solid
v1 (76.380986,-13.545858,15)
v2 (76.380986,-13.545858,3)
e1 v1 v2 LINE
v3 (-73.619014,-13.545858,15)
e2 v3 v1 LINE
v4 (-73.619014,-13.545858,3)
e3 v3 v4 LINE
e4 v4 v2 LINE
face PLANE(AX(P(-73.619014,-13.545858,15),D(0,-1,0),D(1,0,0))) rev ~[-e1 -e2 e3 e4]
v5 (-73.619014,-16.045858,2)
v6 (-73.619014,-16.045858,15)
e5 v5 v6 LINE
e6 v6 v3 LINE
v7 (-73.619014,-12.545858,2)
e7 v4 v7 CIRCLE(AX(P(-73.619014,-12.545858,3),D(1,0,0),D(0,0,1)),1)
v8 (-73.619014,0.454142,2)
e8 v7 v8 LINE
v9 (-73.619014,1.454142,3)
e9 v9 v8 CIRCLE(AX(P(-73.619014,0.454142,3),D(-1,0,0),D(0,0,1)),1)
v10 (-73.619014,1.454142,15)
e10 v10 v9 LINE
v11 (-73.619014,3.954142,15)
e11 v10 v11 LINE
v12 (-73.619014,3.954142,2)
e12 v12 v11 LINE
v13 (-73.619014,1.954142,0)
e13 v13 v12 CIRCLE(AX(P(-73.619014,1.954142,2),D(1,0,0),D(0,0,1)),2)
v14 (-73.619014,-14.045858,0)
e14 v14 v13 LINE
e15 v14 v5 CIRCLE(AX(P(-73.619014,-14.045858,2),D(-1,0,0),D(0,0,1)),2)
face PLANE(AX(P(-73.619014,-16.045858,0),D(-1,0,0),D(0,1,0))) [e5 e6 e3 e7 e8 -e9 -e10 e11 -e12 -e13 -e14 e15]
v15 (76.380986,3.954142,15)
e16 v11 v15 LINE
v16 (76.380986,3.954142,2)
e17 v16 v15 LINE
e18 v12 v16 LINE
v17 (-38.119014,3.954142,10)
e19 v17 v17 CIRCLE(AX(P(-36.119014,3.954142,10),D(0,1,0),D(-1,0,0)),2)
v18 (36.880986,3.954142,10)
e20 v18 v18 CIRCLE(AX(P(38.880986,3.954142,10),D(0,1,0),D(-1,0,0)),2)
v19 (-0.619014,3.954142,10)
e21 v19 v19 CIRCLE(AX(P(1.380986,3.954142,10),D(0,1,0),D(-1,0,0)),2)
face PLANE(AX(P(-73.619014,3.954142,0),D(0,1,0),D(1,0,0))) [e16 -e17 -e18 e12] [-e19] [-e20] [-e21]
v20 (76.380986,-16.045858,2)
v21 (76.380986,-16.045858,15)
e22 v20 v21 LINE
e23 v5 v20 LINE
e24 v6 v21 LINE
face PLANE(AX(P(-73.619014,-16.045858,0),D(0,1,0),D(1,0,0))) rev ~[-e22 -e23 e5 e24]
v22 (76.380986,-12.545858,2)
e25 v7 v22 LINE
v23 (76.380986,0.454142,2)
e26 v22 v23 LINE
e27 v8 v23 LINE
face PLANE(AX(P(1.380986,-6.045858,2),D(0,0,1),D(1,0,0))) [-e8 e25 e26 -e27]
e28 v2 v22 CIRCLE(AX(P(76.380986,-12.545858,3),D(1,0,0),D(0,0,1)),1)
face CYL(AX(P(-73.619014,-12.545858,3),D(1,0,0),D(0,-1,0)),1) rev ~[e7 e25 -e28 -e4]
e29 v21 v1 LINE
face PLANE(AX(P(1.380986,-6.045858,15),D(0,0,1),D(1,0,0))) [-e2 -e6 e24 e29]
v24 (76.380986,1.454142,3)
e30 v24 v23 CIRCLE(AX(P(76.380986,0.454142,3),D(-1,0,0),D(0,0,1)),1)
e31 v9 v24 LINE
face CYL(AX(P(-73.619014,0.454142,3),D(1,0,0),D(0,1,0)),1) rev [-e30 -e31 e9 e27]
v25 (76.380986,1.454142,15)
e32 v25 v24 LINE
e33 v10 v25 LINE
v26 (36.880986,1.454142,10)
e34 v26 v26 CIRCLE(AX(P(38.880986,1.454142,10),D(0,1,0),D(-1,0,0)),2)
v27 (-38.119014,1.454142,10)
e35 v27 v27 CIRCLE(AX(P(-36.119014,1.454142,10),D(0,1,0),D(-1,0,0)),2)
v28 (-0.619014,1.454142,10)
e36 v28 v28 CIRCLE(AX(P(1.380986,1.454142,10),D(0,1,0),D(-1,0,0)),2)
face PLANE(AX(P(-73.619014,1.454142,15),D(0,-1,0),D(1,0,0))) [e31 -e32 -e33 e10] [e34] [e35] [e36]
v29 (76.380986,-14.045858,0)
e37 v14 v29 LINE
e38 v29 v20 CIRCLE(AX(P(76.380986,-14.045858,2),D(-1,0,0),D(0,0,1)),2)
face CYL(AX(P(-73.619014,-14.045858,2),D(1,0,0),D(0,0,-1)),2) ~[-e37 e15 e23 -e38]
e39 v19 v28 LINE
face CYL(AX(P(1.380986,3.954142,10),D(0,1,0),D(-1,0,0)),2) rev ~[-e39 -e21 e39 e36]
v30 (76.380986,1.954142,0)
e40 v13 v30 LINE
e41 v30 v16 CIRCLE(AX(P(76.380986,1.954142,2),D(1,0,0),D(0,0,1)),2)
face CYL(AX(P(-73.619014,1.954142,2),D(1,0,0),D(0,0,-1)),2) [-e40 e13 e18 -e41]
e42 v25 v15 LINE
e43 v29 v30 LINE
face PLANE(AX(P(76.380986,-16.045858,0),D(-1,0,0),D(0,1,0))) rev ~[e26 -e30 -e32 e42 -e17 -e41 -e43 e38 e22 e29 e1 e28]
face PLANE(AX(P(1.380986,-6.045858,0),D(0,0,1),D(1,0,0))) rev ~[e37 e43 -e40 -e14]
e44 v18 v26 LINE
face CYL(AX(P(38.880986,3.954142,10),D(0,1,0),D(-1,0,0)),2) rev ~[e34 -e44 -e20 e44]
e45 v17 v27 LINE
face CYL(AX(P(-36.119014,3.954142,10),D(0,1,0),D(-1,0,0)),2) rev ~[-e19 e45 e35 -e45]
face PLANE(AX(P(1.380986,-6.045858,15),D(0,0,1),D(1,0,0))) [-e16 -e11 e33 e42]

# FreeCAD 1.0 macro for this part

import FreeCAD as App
import Part
import Sketcher


def edges_at(feature, points):
    """Names of the edges that pass closest to the given points."""
    edges = feature.Shape.Edges
    near = lambda p: min(range(len(edges)), key=lambda i: edges[i].distToShape(Part.Vertex(*p))[0])
    return sorted({f"Edge{near(p) + 1}" for p in points})

doc = App.newDocument("Part")
body = doc.addObject("PartDesign::Body", "Body")

# Sketch on XY plane
sketch1 = doc.addObject("Sketcher::SketchObject", "Sketch")
body.addObject(sketch1)
sketch1.AttachmentSupport = (doc.XY_Plane, [""])
sketch1.MapMode = "FlatFace"
sketch1.addGeometry([
    Part.LineSegment(App.Vector(-74, 4, 0), App.Vector(-74, -16, 0)),
    Part.LineSegment(App.Vector(-74, -16, 0), App.Vector(76, -16, 0)),
    Part.LineSegment(App.Vector(76, -16, 0), App.Vector(76, 4, 0)),
    Part.LineSegment(App.Vector(76, 4, 0), App.Vector(-74, 4, 0)),
], False)
sketch1.addConstraint([
    Sketcher.Constraint("Coincident", 0, 2, 1, 1),
    Sketcher.Constraint("Coincident", 1, 2, 2, 1),
    Sketcher.Constraint("Coincident", 2, 2, 3, 1),
    Sketcher.Constraint("Coincident", 3, 2, 0, 1),
    Sketcher.Constraint("Vertical", 0),
    Sketcher.Constraint("Horizontal", 1),
    Sketcher.Constraint("Vertical", 2),
    Sketcher.Constraint("Horizontal", 3),
    Sketcher.Constraint("DistanceX", 1, 1, 1, 2, 150.0),
    Sketcher.Constraint("DistanceY", 0, 2, 0, 1, 20.0),
    Sketcher.Constraint("DistanceY", -1, 1, 2, 2, 3.954142),
    Sketcher.Constraint("DistanceX", 0, 2, -1, 1, 73.619014),
])
pad1 = doc.addObject("PartDesign::Pad", "Pad")
body.addObject(pad1)
pad1.Profile = sketch1
pad1.Length = 15

# Sketch on XY plane
sketch2 = doc.addObject("Sketcher::SketchObject", "Sketch001")
body.addObject(sketch2)
sketch2.AttachmentSupport = (doc.XY_Plane, [""])
sketch2.MapMode = "FlatFace"
sketch2.AttachmentOffset = App.Placement(App.Vector(0, 0, 15), App.Rotation())
sketch2.addGeometry([
    Part.LineSegment(App.Vector(-74, 1, 0), App.Vector(-74, -14, 0)),
    Part.LineSegment(App.Vector(-74, -14, 0), App.Vector(76, -14, 0)),
    Part.LineSegment(App.Vector(76, -14, 0), App.Vector(76, 1, 0)),
    Part.LineSegment(App.Vector(76, 1, 0), App.Vector(-74, 1, 0)),
], False)
sketch2.addConstraint([
    Sketcher.Constraint("Coincident", 0, 2, 1, 1),
    Sketcher.Constraint("Coincident", 1, 2, 2, 1),
    Sketcher.Constraint("Coincident", 2, 2, 3, 1),
    Sketcher.Constraint("Coincident", 3, 2, 0, 1),
    Sketcher.Constraint("Vertical", 0),
    Sketcher.Constraint("Horizontal", 1),
    Sketcher.Constraint("Vertical", 2),
    Sketcher.Constraint("Horizontal", 3),
    Sketcher.Constraint("DistanceX", 1, 1, 1, 2, 150.0),
    Sketcher.Constraint("DistanceY", 0, 2, 0, 1, 15.0),
    Sketcher.Constraint("DistanceY", 0, 2, -1, 1, 13.545858),
    Sketcher.Constraint("DistanceX", 0, 2, -1, 1, 73.619014),
])
pocket1 = doc.addObject("PartDesign::Pocket", "Pocket")
body.addObject(pocket1)
pocket1.Profile = sketch2
pocket1.Length = 13

# Sketch on XZ plane
sketch3 = doc.addObject("Sketcher::SketchObject", "Sketch002")
body.addObject(sketch3)
sketch3.AttachmentSupport = (doc.XZ_Plane, [""])
sketch3.MapMode = "FlatFace"
sketch3.AttachmentOffset = App.Placement(App.Vector(0, 0, -3.954142), App.Rotation())
sketch3.addGeometry([
    Part.Circle(App.Vector(38.9, 10, 0), App.Vector(0, 0, 1), 2),
    Part.Circle(App.Vector(1.4, 10, 0), App.Vector(0, 0, 1), 2),
    Part.Circle(App.Vector(-36.1, 10, 0), App.Vector(0, 0, 1), 2),
], False)
sketch3.addConstraint([
    Sketcher.Constraint("Equal", 0, 1),
    Sketcher.Constraint("Equal", 1, 2),
    Sketcher.Constraint("Horizontal", 0, 3, 1, 3),
    Sketcher.Constraint("Horizontal", 1, 3, 2, 3),
    Sketcher.Constraint("Diameter", 0, 4.0),
    Sketcher.Constraint("DistanceY", -1, 1, 0, 3, 10.0),
    Sketcher.Constraint("DistanceX", 2, 3, 0, 3, 75.0),
    Sketcher.Constraint("DistanceX", 1, 3, 0, 3, 37.5),
    Sketcher.Constraint("DistanceX", -1, 1, 0, 3, 38.880986),
])
pocket2 = doc.addObject("PartDesign::Pocket", "Pocket001")
body.addObject(pocket2)
pocket2.Profile = sketch3
pocket2.Length = 2.5
pocket2.Reversed = True
doc.recompute()

fillet = doc.addObject("PartDesign::Fillet", "Fillet")
body.addObject(fillet)
fillet.Base = (pocket2, edges_at(pocket2, [(1.381, -16.046, 0), (1.381, 3.954, 0)]))
fillet.Radius = 2
doc.recompute()

fillet2 = doc.addObject("PartDesign::Fillet", "Fillet001")
body.addObject(fillet2)
fillet2.Base = (fillet, edges_at(fillet, [(1.381, -13.546, 2), (1.381, 1.454, 2)]))
fillet2.Radius = 1

doc.recompute()
